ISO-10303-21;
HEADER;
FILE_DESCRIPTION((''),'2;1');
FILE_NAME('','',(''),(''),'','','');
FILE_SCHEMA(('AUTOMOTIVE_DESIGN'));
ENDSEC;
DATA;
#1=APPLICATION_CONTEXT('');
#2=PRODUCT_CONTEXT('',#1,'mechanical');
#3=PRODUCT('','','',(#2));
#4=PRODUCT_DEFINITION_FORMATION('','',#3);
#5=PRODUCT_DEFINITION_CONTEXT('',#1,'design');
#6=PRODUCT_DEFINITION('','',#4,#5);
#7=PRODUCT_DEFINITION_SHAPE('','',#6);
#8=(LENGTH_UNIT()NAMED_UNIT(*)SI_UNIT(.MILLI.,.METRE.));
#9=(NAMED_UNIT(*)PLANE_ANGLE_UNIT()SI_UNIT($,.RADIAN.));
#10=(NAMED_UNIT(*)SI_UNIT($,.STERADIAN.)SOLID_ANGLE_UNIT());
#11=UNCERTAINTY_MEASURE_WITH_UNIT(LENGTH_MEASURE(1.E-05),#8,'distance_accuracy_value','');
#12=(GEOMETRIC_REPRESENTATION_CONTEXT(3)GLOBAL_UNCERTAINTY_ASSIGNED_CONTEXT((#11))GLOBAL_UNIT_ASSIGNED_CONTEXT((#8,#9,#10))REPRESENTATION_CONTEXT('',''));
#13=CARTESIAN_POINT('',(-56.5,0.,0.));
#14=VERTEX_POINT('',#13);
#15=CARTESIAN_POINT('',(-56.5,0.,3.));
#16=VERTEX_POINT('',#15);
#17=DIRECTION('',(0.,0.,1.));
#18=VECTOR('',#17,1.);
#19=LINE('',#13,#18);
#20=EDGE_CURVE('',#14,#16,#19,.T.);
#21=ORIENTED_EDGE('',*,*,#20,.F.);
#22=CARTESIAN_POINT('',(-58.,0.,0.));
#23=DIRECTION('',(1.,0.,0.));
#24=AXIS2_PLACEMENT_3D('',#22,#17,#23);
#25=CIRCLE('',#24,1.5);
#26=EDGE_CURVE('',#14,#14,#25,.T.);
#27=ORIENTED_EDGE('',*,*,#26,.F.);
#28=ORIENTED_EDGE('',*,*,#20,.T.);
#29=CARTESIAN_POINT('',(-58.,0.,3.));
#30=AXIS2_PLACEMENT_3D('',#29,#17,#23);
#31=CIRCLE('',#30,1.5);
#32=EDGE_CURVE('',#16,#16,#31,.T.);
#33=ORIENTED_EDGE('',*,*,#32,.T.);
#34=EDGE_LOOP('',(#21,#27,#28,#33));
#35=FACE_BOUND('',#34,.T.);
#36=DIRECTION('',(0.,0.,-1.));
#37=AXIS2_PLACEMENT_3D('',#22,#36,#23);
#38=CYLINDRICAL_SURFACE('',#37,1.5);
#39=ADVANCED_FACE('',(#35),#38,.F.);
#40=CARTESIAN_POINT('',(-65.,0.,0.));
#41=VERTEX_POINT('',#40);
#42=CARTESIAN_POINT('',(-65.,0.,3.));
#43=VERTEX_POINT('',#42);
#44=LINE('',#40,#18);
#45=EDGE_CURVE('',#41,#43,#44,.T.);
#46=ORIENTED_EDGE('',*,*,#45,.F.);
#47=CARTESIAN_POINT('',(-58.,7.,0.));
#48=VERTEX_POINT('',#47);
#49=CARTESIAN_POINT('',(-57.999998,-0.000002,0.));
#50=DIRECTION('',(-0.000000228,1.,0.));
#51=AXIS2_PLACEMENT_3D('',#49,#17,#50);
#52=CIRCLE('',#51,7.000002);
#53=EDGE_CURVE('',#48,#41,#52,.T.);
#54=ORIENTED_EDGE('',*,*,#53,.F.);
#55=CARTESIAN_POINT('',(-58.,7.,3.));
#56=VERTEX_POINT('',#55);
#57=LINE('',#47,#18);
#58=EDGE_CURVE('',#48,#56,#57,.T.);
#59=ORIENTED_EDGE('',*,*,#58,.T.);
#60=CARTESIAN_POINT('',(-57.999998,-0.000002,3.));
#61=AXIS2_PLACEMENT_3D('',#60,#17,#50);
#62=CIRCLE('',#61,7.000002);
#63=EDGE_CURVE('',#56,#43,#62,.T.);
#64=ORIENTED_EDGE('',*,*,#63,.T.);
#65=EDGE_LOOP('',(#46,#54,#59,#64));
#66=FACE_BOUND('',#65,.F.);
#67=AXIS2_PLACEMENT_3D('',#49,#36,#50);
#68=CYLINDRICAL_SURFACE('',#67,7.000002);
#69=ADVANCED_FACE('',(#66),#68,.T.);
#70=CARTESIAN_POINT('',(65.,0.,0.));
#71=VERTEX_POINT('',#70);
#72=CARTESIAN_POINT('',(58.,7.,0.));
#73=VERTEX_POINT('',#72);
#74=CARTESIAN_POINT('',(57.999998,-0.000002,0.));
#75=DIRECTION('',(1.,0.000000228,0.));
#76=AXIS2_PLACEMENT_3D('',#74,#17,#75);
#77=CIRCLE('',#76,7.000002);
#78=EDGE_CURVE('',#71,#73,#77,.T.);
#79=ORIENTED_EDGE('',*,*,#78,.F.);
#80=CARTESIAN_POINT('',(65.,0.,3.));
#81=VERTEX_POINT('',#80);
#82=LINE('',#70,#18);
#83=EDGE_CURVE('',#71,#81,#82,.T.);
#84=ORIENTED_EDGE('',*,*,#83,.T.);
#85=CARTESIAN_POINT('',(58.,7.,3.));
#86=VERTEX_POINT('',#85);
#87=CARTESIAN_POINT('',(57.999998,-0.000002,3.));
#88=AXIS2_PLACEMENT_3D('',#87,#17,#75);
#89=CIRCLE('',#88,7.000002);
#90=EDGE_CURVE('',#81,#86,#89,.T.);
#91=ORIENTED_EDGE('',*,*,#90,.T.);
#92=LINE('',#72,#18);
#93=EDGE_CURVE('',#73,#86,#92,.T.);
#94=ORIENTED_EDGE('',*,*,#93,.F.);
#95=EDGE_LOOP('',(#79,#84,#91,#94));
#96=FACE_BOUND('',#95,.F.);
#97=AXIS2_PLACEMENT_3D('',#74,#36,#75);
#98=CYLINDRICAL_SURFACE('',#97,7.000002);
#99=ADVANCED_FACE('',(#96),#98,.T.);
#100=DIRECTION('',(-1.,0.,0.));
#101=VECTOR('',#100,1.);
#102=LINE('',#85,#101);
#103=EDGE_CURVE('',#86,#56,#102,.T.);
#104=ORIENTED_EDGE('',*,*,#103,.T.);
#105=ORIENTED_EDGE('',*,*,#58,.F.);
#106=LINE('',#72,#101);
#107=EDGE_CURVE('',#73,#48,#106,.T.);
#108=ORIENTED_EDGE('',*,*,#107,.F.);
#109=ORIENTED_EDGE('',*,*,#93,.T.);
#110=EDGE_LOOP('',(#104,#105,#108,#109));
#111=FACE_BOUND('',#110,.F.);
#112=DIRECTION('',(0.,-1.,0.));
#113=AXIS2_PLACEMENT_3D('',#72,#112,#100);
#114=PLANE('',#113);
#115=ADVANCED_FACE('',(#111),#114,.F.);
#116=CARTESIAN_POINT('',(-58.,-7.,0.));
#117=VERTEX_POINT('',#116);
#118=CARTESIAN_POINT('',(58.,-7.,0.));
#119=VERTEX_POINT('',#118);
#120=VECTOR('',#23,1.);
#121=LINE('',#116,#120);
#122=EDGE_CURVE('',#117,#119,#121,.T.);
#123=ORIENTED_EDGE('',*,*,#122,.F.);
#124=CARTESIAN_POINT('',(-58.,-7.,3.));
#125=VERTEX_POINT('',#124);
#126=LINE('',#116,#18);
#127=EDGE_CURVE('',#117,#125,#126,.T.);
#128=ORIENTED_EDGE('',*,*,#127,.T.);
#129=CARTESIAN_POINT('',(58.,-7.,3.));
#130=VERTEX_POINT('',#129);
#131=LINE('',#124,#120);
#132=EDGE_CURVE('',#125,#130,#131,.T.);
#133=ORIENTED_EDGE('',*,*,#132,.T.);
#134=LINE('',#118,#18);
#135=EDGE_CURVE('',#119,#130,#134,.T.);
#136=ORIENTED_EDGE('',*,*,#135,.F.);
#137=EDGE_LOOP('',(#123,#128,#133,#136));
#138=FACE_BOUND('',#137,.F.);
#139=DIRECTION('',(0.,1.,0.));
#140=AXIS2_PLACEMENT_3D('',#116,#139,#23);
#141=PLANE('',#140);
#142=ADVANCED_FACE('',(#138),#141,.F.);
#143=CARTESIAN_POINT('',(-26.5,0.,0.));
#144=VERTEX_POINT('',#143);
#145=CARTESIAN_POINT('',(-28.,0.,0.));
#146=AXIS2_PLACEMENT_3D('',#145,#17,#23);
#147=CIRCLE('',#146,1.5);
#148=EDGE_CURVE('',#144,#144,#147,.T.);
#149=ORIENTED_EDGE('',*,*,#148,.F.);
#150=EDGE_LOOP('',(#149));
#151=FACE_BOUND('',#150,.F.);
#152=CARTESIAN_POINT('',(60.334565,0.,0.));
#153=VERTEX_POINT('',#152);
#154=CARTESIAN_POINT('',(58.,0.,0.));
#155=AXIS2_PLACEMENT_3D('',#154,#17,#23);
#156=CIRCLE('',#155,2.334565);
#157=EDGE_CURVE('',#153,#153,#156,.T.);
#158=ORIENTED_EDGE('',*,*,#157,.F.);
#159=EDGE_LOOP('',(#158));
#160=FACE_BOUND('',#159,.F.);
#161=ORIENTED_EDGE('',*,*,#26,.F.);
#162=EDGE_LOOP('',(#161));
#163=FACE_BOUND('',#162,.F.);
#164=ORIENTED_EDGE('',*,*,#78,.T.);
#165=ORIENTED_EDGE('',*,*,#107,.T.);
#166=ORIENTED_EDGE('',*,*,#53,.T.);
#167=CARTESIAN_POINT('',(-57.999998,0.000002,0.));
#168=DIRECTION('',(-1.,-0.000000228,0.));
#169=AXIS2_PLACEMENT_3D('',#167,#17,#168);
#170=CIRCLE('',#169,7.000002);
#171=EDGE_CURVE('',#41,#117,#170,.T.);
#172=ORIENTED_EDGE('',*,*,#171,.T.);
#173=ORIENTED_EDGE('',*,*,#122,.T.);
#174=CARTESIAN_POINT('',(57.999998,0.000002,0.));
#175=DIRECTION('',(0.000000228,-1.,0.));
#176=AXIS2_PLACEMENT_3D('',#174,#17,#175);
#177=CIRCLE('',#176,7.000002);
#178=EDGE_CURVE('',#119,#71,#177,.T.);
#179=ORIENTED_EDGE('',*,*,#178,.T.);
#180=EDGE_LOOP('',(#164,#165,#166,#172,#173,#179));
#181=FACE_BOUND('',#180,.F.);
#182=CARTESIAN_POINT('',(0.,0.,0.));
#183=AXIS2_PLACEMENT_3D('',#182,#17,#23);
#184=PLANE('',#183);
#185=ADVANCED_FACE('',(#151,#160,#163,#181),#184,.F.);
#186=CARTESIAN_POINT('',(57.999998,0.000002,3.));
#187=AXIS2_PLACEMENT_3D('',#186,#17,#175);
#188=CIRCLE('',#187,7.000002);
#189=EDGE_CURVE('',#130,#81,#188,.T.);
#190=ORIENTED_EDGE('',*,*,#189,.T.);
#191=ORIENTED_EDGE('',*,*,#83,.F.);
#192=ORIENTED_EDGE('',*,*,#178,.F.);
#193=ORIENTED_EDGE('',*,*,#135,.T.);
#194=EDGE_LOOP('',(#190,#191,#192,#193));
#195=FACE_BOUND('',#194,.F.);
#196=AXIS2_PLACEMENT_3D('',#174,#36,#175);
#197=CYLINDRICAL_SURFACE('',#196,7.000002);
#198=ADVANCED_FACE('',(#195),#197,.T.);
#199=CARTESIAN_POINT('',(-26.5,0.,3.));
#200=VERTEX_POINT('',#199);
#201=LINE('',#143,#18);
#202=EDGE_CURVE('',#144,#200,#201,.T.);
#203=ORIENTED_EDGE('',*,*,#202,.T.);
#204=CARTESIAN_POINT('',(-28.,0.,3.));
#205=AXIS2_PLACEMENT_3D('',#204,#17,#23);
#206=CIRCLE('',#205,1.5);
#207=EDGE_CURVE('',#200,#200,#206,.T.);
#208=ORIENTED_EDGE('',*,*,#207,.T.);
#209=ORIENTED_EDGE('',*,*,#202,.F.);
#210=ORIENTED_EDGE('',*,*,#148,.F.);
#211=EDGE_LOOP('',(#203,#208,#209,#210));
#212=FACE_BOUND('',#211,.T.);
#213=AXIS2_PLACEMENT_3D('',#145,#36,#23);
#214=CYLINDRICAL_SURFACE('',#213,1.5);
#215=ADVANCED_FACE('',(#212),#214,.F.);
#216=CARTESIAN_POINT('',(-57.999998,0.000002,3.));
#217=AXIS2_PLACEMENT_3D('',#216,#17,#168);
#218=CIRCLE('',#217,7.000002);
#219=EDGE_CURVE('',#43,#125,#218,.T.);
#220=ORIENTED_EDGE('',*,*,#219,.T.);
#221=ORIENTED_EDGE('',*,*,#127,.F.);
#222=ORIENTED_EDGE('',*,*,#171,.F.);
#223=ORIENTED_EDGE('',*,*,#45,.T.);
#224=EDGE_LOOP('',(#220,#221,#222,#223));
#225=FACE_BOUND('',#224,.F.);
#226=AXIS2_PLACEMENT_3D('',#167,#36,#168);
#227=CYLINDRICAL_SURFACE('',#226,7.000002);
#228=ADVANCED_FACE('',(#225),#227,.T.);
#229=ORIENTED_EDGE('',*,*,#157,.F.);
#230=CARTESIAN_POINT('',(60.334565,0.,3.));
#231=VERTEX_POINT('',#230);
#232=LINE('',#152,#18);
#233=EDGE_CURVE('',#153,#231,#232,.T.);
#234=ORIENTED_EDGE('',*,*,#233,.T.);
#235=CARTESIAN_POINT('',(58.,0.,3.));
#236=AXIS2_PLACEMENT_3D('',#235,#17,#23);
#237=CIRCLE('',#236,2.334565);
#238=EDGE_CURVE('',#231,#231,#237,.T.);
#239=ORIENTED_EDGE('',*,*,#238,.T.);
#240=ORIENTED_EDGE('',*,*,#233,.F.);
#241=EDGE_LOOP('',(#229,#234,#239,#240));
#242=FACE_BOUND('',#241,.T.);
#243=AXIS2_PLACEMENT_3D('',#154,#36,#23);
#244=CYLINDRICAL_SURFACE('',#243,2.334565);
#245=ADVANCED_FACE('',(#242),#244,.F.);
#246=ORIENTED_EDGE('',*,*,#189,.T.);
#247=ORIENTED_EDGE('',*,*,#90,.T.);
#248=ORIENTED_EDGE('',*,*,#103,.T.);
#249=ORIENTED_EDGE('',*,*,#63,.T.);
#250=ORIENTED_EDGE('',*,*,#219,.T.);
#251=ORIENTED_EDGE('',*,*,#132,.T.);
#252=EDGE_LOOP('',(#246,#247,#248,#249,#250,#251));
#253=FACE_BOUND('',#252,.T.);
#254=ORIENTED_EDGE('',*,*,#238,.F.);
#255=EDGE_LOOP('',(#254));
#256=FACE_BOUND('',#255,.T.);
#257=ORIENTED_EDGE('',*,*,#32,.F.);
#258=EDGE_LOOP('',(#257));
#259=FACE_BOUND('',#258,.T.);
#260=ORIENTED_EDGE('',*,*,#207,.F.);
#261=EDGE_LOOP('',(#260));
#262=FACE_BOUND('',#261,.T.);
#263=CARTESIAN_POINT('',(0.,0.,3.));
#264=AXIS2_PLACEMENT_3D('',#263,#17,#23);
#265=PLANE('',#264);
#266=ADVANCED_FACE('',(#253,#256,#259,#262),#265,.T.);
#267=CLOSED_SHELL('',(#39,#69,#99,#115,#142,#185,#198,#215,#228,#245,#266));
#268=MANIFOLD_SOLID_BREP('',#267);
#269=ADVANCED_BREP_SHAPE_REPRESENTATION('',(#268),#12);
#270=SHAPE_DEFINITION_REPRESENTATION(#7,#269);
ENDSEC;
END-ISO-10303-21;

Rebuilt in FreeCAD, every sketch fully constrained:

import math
import FreeCAD as App
import Part
import Sketcher

V = App.Vector

doc = App.newDocument("Part")
body = doc.addObject("PartDesign::Body", "Body")

# Sketch on XY plane
sketch1 = body.newObject("Sketcher::SketchObject", "Sketch")
sketch1.AttachmentSupport = (doc.getObject("XY_Plane"), [""])
sketch1.MapMode = "FlatFace"
sketch1.addGeometry([
    Part.ArcOfCircle(Part.Circle(V(-57.999998, 0.000002, 0), V(0, 0, 1), 7.000002), math.radians(-179.999987), math.radians(-90.000013)),  # 0
    Part.LineSegment(V(-58, -7, 0), V(58, -7, 0)),  # 1
    Part.ArcOfCircle(Part.Circle(V(57.999998, 0.000002, 0), V(0, 0, 1), 7.000002), math.radians(-89.999987), math.radians(-0.000013)),  # 2
    Part.ArcOfCircle(Part.Circle(V(57.999998, -0.000002, 0), V(0, 0, 1), 7.000002), math.radians(0.000013), math.radians(89.999987)),  # 3
    Part.LineSegment(V(58, 7, 0), V(-58, 7, 0)),  # 4
    Part.ArcOfCircle(Part.Circle(V(-57.999998, -0.000002, 0), V(0, 0, 1), 7.000002), math.radians(90.000013), math.radians(179.999987)),  # 5
    Part.Circle(V(-58, 0, 0), V(0, 0, 1), 1.5),  # 6
    Part.Circle(V(-28, 0, 0), V(0, 0, 1), 1.5),  # 7
    Part.Circle(V(58, 0, 0), V(0, 0, 1), 2.334565),  # 8
], False)
sketch1.addConstraint([
    Sketcher.Constraint("Tangent", 0, 2, 1, 1),
    Sketcher.Constraint("Tangent", 1, 2, 2, 1),
    Sketcher.Constraint("Tangent", 2, 2, 3, 1),
    Sketcher.Constraint("Tangent", 3, 2, 4, 1),
    Sketcher.Constraint("Tangent", 4, 2, 5, 1),
    Sketcher.Constraint("Tangent", 5, 2, 0, 1),
    Sketcher.Constraint("Horizontal", 1),
    Sketcher.Constraint("Horizontal", 4),
    Sketcher.Constraint("Coincident", 6, 3, 0, 3),
    Sketcher.Constraint("Coincident", 8, 3, 2, 3),
    Sketcher.Constraint("Equal", 0, 2),
    Sketcher.Constraint("Equal", 2, 3),
    Sketcher.Constraint("Equal", 6, 7),
    Sketcher.Constraint("Symmetric", 0, 3, 2, 3, -1, 1),
    Sketcher.Constraint("PointOnObject", 7, 3, -1),
    Sketcher.Constraint("PointOnObject", 2, 2, -1),
    Sketcher.Constraint("PointOnObject", 5, 2, -1),
    Sketcher.Constraint("Diameter", 6, 3.0),
    Sketcher.Constraint("Radius", 0, 7.000002),
    Sketcher.Constraint("DistanceX", 1, 1, 1, 2, 116.0),
    Sketcher.Constraint("DistanceX", 7, 3, -1, 1, 28.0),
    Sketcher.Constraint("Diameter", 8, 4.66913),
])
pad1 = body.newObject("PartDesign::Pad", "Pad")
pad1.Profile = sketch1
pad1.Length = 3

doc.recompute()
